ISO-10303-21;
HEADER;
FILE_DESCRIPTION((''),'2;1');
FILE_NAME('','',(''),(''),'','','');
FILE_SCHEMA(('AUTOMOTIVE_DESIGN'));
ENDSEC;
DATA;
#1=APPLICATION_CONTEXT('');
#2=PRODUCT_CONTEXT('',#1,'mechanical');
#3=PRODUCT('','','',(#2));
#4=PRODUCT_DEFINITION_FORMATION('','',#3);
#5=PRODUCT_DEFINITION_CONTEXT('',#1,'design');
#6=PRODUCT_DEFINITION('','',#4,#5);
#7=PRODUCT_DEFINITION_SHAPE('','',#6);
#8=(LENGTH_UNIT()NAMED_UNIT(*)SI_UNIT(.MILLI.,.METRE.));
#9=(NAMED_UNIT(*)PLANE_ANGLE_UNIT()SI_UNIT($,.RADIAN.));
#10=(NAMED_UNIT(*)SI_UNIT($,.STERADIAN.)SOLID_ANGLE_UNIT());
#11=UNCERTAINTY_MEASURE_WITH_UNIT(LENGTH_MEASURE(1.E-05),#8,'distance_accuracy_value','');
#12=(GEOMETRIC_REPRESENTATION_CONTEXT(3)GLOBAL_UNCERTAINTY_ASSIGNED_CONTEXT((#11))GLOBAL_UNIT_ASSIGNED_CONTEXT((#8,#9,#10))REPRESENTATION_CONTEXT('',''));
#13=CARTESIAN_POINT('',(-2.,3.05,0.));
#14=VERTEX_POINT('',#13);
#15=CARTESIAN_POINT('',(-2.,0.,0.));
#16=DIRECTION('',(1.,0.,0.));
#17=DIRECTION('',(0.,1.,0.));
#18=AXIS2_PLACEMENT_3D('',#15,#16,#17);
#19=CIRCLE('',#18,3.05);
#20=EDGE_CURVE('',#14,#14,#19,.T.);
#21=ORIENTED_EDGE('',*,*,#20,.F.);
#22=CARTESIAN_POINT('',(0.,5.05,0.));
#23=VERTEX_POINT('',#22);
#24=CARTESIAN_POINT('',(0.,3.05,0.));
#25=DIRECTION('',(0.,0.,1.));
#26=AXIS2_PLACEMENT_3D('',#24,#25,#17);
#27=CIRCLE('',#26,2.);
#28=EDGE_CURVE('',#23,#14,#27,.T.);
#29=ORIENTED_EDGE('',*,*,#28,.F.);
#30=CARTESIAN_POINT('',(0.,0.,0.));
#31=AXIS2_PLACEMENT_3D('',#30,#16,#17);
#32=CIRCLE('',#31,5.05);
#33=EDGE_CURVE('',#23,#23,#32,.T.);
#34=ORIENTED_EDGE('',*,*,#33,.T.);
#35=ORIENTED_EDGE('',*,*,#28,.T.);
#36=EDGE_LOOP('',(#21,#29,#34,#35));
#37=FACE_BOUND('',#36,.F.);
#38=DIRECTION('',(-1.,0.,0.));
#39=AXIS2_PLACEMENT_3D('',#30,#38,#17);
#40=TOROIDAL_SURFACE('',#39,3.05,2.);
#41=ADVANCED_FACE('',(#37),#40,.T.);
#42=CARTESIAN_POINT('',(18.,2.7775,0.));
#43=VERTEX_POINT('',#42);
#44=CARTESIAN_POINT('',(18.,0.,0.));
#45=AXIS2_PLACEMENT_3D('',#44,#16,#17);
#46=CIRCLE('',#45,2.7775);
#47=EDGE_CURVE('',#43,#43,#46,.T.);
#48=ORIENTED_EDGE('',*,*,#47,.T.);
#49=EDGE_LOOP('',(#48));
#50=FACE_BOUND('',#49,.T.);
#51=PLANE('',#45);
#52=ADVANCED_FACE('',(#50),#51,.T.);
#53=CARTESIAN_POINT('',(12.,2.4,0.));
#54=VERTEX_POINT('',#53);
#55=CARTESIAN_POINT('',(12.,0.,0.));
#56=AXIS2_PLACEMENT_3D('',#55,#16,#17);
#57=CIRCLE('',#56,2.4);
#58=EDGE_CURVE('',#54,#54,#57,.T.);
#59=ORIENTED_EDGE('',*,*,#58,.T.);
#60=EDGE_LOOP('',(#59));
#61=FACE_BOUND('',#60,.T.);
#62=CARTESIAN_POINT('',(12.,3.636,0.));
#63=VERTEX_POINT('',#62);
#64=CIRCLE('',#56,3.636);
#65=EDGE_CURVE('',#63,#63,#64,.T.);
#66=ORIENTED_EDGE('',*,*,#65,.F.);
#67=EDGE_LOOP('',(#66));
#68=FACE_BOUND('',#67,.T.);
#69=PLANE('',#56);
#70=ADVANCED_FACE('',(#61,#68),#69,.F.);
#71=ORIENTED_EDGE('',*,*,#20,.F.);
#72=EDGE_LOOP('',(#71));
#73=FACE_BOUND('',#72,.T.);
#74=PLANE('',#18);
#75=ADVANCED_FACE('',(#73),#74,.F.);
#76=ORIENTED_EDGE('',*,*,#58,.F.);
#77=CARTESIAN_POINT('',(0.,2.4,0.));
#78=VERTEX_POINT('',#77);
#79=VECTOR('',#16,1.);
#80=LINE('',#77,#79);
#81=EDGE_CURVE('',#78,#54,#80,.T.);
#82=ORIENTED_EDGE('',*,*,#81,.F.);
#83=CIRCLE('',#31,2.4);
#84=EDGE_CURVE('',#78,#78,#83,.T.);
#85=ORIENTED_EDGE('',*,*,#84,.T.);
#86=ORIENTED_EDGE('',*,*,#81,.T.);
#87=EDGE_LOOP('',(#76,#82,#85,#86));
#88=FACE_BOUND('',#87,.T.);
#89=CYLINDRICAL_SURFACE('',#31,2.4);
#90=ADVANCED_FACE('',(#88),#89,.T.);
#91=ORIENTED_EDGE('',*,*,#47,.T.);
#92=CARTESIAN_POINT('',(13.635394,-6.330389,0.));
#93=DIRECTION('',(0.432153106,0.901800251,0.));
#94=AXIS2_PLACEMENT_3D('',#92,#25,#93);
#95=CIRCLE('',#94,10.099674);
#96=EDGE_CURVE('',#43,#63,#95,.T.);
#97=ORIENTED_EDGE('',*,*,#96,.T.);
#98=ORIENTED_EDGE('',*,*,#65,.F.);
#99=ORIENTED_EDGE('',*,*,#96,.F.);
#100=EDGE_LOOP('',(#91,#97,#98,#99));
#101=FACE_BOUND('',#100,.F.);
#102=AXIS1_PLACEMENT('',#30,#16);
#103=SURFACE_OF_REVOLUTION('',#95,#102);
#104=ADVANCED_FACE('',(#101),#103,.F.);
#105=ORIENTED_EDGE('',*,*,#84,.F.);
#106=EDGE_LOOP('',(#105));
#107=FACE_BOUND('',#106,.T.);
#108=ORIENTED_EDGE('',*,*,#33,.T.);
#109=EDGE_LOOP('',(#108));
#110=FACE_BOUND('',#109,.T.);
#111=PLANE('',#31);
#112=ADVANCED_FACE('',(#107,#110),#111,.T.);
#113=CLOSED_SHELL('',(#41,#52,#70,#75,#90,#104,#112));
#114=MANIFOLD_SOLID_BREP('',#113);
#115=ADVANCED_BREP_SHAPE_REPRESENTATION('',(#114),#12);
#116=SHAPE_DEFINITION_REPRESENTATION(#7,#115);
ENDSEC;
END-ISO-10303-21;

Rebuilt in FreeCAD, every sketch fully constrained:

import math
import FreeCAD as App
import Part
import Sketcher
from FreeCAD import Vector

doc = App.newDocument("Part")
body = doc.addObject("PartDesign::Body", "Body")

sketch1 = body.newObject("Sketcher::SketchObject", "Sketch")
sketch1.AttachmentSupport = (doc.getObject("XY_Plane"), [""])
sketch1.MapMode = "FlatFace"
sketch1.addGeometry(Part.LineSegment(Vector(-2, 0, 0), Vector(18, 0, 0)), False)
sketch1.addGeometry(Part.LineSegment(Vector(18, 0, 0), Vector(18, 2.8, 0)), False)
sketch1.addGeometry(Part.ArcOfCircle(Part.Circle(Vector(13.6, -6.3, 0), Vector(0, 0, 1), 10.1), math.radians(64), math.radians(99)), False)
sketch1.addGeometry(Part.LineSegment(Vector(12, 3.6, 0), Vector(12, 2.4, 0)), False)
sketch1.addGeometry(Part.LineSegment(Vector(12, 2.4, 0), Vector(0, 2.4, 0)), False)
sketch1.addGeometry(Part.LineSegment(Vector(0, 2.4, 0), Vector(0, 5, 0)), False)
sketch1.addGeometry(Part.ArcOfCircle(Part.Circle(Vector(0, 3, 0), Vector(0, 0, 1), 2), math.radians(90), math.radians(180)), False)
sketch1.addGeometry(Part.LineSegment(Vector(-2, 3, 0), Vector(-2, 0, 0)), False)
sketch1.addConstraint(Sketcher.Constraint("Coincident", 0, 2, 1, 1))
sketch1.addConstraint(Sketcher.Constraint("Coincident", 1, 2, 2, 1))
sketch1.addConstraint(Sketcher.Constraint("Coincident", 2, 2, 3, 1))
sketch1.addConstraint(Sketcher.Constraint("Coincident", 3, 2, 4, 1))
sketch1.addConstraint(Sketcher.Constraint("Coincident", 4, 2, 5, 1))
sketch1.addConstraint(Sketcher.Constraint("Coincident", 5, 2, 6, 1))
sketch1.addConstraint(Sketcher.Constraint("Tangent", 6, 2, 7, 1))
sketch1.addConstraint(Sketcher.Constraint("Coincident", 7, 2, 0, 1))
sketch1.addConstraint(Sketcher.Constraint("Horizontal", 0))
sketch1.addConstraint(Sketcher.Constraint("Vertical", 1))
sketch1.addConstraint(Sketcher.Constraint("Vertical", 3))
sketch1.addConstraint(Sketcher.Constraint("Horizontal", 4))
sketch1.addConstraint(Sketcher.Constraint("Vertical", 5))
sketch1.addConstraint(Sketcher.Constraint("Vertical", 7))
sketch1.addConstraint(Sketcher.Constraint("PointOnObject", 6, 3, -2))
sketch1.addConstraint(Sketcher.Constraint("PointOnObject", 0, 2, -1))
sketch1.addConstraint(Sketcher.Constraint("PointOnObject", 4, 2, -2))
sketch1.addConstraint(Sketcher.Constraint("Radius", 6, 2.0))
sketch1.addConstraint(Sketcher.Constraint("Radius", 2, 10.1))
sketch1.addConstraint(Sketcher.Constraint("DistanceX", 4, 2, 4, 1, 12.0))
sketch1.addConstraint(Sketcher.Constraint("DistanceX", 2, 2, 1, 2, 6.0))
sketch1.addConstraint(Sketcher.Constraint("DistanceY", 5, 1, 5, 2, 2.65))
sketch1.addConstraint(Sketcher.Constraint("DistanceY", 7, 2, 7, 1, 3.05))
sketch1.addConstraint(Sketcher.Constraint("DistanceY", 3, 2, 3, 1, 1.236))
sketch1.addConstraint(Sketcher.Constraint("DistanceY", 1, 1, 1, 2, 2.7775))
revolution = body.newObject("PartDesign::Revolution", "Revolution")
revolution.Profile = sketch1
revolution.ReferenceAxis = (sketch1, ["H_Axis"])
revolution.Angle = 360

doc.recompute()
